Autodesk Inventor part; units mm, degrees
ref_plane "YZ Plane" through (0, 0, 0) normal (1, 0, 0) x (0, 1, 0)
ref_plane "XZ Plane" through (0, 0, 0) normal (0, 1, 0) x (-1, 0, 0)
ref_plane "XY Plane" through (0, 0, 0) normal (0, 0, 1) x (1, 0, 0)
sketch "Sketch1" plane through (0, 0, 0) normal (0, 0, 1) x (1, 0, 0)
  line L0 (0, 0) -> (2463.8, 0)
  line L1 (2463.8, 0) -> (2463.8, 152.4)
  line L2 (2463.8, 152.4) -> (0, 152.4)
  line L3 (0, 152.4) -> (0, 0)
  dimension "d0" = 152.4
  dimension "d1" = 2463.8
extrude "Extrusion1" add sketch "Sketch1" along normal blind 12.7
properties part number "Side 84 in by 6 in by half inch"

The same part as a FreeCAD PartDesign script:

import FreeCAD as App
import Part
import Sketcher
from FreeCAD import Vector
Q = App.Units.Quantity

doc = App.newDocument("Part")
body = doc.addObject("PartDesign::Body", "Body")

# Sketch on XY plane
sketch1 = body.newObject("Sketcher::SketchObject", "Sketch")
sketch1.AttachmentSupport = (doc.getObject("XY_Plane"), [""])
sketch1.MapMode = "FlatFace"
sketch1.addGeometry([
    Part.LineSegment(Vector(0, 152, 0), Vector(0, 0, 0)),
    Part.LineSegment(Vector(0, 0, 0), Vector(2464, 0, 0)),
    Part.LineSegment(Vector(2464, 0, 0), Vector(2464, 152, 0)),
    Part.LineSegment(Vector(2464, 152, 0), Vector(0, 152, 0)),
], False)
sketch1.addConstraint([
    Sketcher.Constraint("Coincident", 0, 2, 1, 1),
    Sketcher.Constraint("Coincident", 1, 2, 2, 1),
    Sketcher.Constraint("Coincident", 2, 2, 3, 1),
    Sketcher.Constraint("Coincident", 3, 2, 0, 1),
    Sketcher.Constraint("Vertical", 0),
    Sketcher.Constraint("Horizontal", 1),
    Sketcher.Constraint("Vertical", 2),
    Sketcher.Constraint("Horizontal", 3),
    Sketcher.Constraint("Coincident", 0, 2, -1, 1),
    Sketcher.Constraint("DistanceX", 1, 1, 1, 2, Q("97 in")),
    Sketcher.Constraint("DistanceY", 0, 2, 0, 1, Q("6 in")),
])
pad1 = body.newObject("PartDesign::Pad", "Pad")
pad1.Profile = sketch1
pad1.Length = Q("0.5 in")

doc.recompute()
